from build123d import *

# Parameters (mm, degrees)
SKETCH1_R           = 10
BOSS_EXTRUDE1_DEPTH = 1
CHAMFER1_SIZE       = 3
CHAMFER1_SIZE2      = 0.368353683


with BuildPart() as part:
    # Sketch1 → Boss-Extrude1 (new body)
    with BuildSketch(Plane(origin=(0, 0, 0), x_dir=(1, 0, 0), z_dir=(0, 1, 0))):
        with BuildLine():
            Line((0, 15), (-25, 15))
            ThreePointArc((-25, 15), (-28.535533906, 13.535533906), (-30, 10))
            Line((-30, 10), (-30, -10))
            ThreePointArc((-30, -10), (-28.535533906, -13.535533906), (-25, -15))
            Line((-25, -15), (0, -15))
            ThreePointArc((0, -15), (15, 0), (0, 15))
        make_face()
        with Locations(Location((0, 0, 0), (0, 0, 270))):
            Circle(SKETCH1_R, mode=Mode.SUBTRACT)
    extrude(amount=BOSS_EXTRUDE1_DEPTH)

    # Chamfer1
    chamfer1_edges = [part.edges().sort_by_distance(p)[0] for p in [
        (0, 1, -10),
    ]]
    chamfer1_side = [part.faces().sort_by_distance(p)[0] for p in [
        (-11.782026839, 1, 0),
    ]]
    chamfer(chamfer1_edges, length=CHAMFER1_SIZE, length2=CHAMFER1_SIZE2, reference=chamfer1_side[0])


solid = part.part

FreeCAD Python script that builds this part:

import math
import FreeCAD as App
import Part
import Sketcher

V = App.Vector


def edges_at(feature, points):
    """Names of the edges that pass closest to the given points."""
    edges = feature.Shape.Edges
    near = lambda p: min(range(len(edges)), key=lambda i: edges[i].distToShape(Part.Vertex(*p))[0])
    return sorted({f"Edge{near(p) + 1}" for p in points})

doc = App.newDocument("Part")
body = doc.addObject("PartDesign::Body", "Body")

# Sketch on XZ plane
sketch1 = body.newObject("Sketcher::SketchObject", "Sketch")
sketch1.AttachmentSupport = (doc.getObject("XZ_Plane"), [""])
sketch1.MapMode = "FlatFace"
sketch1.addGeometry([
    Part.LineSegment(V(0, -15, 0), V(-25, -15, 0)),  # 0
    Part.ArcOfCircle(Part.Circle(V(-25, -10, 0), V(0, 0, 1), 5), math.radians(180), math.radians(270)),  # 1
    Part.LineSegment(V(-30, -10, 0), V(-30, 10, 0)),  # 2
    Part.ArcOfCircle(Part.Circle(V(-25, 10, 0), V(0, 0, 1), 5), math.radians(90), math.radians(180)),  # 3
    Part.LineSegment(V(-25, 15, 0), V(0, 15, 0)),  # 4
    Part.ArcOfCircle(Part.Circle(V(0, 0, 0), V(0, 0, 1), 15), math.radians(-90), math.radians(90)),  # 5
    Part.Circle(V(0, 0, 0), V(0, 0, 1), 10),  # 6
], False)
sketch1.addConstraint([
    Sketcher.Constraint("Tangent", 0, 2, 1, 2),
    Sketcher.Constraint("Tangent", 1, 1, 2, 1),
    Sketcher.Constraint("Tangent", 2, 2, 3, 2),
    Sketcher.Constraint("Tangent", 3, 1, 4, 1),
    Sketcher.Constraint("Tangent", 4, 2, 5, 2),
    Sketcher.Constraint("Tangent", 5, 1, 0, 1),
    Sketcher.Constraint("Horizontal", 0),
    Sketcher.Constraint("Vertical", 2),
    Sketcher.Constraint("Horizontal", 4),
    Sketcher.Constraint("Coincident", 5, 3, -1, 1),
    Sketcher.Constraint("Coincident", 6, 3, -1, 1),
    Sketcher.Constraint("Equal", 1, 3),
    Sketcher.Constraint("Diameter", 6, 20.0),
    Sketcher.Constraint("Radius", 1, 5.0),
    Sketcher.Constraint("Radius", 5, 15.0),
    Sketcher.Constraint("DistanceX", 0, 2, 0, 1, 25.0),
])
pad1 = body.newObject("PartDesign::Pad", "Pad")
pad1.Profile = sketch1
pad1.Length = 1
pad1.Reversed = True
doc.recompute()

chamfer = body.newObject("PartDesign::Chamfer", "Chamfer")
chamfer.Base = (pad1, edges_at(pad1, [(0, 1, -10)]))
chamfer.ChamferType = "Two distances"
chamfer.Size = 3
chamfer.Size2 = 0.368354
chamfer.FlipDirection = True

doc.recompute()
